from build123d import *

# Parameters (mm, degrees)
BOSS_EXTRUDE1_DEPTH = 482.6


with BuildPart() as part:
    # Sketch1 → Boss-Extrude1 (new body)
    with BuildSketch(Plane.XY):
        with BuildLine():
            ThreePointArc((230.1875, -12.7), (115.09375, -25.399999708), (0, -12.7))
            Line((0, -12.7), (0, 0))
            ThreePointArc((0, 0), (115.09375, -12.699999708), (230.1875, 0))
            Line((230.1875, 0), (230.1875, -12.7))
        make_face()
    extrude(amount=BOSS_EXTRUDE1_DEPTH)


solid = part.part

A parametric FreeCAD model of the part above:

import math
import FreeCAD as App
import Part
import Sketcher
from FreeCAD import Vector
Q = App.Units.Quantity

doc = App.newDocument("Part")
body = doc.addObject("PartDesign::Body", "Body")

sketch1 = body.newObject("Sketcher::SketchObject", "Sketch")
sketch1.AttachmentSupport = (doc.getObject("XY_Plane"), [""])
sketch1.MapMode = "FlatFace"
sketch1.addGeometry(Part.ArcOfCircle(Part.Circle(Vector(115, 502, 0), Vector(0, 0, 1), 528), math.radians(-103), math.radians(-77)), False)
sketch1.addGeometry(Part.LineSegment(Vector(230, -13, 0), Vector(230, 0, 0)), False)
sketch1.addGeometry(Part.ArcOfCircle(Part.Circle(Vector(115, 515, 0), Vector(0, 0, 1), 528), math.radians(-103), math.radians(-77)), False)
sketch1.addGeometry(Part.LineSegment(Vector(0, 0, 0), Vector(0, -13, 0)), False)
sketch1.addConstraint(Sketcher.Constraint("Coincident", 0, 2, 1, 1))
sketch1.addConstraint(Sketcher.Constraint("Coincident", 1, 2, 2, 2))
sketch1.addConstraint(Sketcher.Constraint("Coincident", 2, 1, 3, 1))
sketch1.addConstraint(Sketcher.Constraint("Coincident", 3, 2, 0, 1))
sketch1.addConstraint(Sketcher.Constraint("Vertical", 1))
sketch1.addConstraint(Sketcher.Constraint("Vertical", 3))
sketch1.addConstraint(Sketcher.Constraint("Equal", 0, 2))
sketch1.addConstraint(Sketcher.Constraint("PointOnObject", 1, 2, -1))
sketch1.addConstraint(Sketcher.Constraint("PointOnObject", 3, 2, -2))
sketch1.addConstraint(Sketcher.Constraint("Horizontal", 1, 2, 2, 1))
sketch1.addConstraint(Sketcher.Constraint("Horizontal", 0, 2, 3, 2))
sketch1.addConstraint(Sketcher.Constraint("DistanceY", 1, 1, 1, 2, Q("0.5 in")))
sketch1.addConstraint(Sketcher.Constraint("DistanceX", -1, 1, 0, 3, Q("4.53125 in")))
sketch1.addConstraint(Sketcher.Constraint("Radius", 0, Q("527.868567 mm")))
pad1 = body.newObject("PartDesign::Pad", "Pad")
pad1.Profile = sketch1
pad1.Length = Q("19 in")

doc.recompute()
